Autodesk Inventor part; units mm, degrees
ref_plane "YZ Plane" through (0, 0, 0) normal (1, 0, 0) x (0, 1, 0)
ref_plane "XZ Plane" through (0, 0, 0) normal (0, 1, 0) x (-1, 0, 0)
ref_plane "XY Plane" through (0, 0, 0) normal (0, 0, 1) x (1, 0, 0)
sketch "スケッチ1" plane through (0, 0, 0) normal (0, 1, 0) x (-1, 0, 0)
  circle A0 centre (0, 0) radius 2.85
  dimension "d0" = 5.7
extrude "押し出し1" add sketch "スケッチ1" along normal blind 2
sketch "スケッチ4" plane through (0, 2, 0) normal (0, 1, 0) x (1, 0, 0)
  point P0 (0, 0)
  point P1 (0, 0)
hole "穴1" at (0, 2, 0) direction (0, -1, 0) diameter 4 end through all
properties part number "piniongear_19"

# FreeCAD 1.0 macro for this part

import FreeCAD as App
import Part
import Sketcher

V = App.Vector

doc = App.newDocument("Part")
body = doc.addObject("PartDesign::Body", "Body")

# Sketch on XZ plane
sketch1 = body.newObject("Sketcher::SketchObject", "Sketch")
sketch1.AttachmentSupport = (doc.getObject("XZ_Plane"), [""])
sketch1.MapMode = "FlatFace"
sketch1.addGeometry(Part.Circle(V(0, 0, 0), V(0, 0, 1), 2.85), False)
sketch1.addConstraint([
    Sketcher.Constraint("Coincident", 0, 3, -1, 1),
    Sketcher.Constraint("Diameter", 0, 5.7),
])
pad1 = body.newObject("PartDesign::Pad", "Pad")
pad1.Profile = sketch1
pad1.Length = 2
pad1.Reversed = True

# Sketch on XZ plane
sketch2 = body.newObject("Sketcher::SketchObject", "Sketch001")
sketch2.AttachmentSupport = (doc.getObject("XZ_Plane"), [""])
sketch2.MapMode = "FlatFace"
sketch2.AttachmentOffset = App.Placement(V(0, 0, -2), App.Rotation())
sketch2.addGeometry(Part.Circle(V(0, 0, 0), V(0, 0, 1), 2), False)
sketch2.addConstraint([
    Sketcher.Constraint("Coincident", 0, 3, -1, 1),
    Sketcher.Constraint("Diameter", 0, 4.0),
])
doc.recompute()
hole = body.newObject("PartDesign::Hole", "Hole")
hole.Profile = sketch2
hole.ThreadType = "None"
hole.Diameter = 4
hole.DepthType = "ThroughAll"
hole.Reversed = True

doc.recompute()
